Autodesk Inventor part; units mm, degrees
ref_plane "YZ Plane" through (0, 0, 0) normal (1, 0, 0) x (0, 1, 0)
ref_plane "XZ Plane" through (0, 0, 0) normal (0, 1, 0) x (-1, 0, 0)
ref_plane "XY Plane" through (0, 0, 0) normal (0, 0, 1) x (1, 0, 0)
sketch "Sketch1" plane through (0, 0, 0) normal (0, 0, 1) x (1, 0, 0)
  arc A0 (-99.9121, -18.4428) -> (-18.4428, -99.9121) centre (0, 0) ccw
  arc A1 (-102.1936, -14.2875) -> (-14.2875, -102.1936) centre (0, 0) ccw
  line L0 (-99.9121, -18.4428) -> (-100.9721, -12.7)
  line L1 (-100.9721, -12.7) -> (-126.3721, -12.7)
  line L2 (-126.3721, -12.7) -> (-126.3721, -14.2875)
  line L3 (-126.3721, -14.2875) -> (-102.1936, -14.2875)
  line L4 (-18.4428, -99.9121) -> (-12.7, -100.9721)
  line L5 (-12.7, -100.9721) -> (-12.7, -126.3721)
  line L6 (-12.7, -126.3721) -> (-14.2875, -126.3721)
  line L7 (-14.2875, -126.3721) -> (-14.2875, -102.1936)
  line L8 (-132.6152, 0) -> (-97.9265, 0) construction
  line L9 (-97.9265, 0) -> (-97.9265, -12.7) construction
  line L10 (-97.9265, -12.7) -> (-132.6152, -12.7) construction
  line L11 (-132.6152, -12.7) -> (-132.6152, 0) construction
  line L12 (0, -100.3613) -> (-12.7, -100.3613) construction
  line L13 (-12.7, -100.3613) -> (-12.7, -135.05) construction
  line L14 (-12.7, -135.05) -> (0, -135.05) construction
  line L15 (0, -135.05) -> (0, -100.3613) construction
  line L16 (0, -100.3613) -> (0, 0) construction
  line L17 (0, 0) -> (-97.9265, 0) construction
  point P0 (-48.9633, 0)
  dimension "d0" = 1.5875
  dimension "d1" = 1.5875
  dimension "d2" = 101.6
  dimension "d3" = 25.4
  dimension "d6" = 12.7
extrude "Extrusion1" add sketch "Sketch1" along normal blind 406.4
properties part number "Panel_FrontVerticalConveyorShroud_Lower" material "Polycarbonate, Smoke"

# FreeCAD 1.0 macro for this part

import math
import FreeCAD as App
import Part
import Sketcher
from FreeCAD import Vector
Q = App.Units.Quantity

doc = App.newDocument("Part")
body = doc.addObject("PartDesign::Body", "Body")

# Sketch on XY plane
sketch1 = body.newObject("Sketcher::SketchObject", "Sketch")
sketch1.AttachmentSupport = (doc.getObject("XY_Plane"), [""])
sketch1.MapMode = "FlatFace"
sketch1.addGeometry([
    Part.ArcOfCircle(Part.Circle(Vector(0, 0, 0), Vector(0, 0, 1), 101.600023), math.radians(-169.541483), math.radians(-100.458517)),  # 0
    Part.LineSegment(Vector(-99.9121, -18.4428, 0), Vector(-100.9721, -12.7, 0)),  # 1
    Part.LineSegment(Vector(-100.9721, -12.7, 0), Vector(-126.3721, -12.7, 0)),  # 2
    Part.LineSegment(Vector(-126.3721, -12.7, 0), Vector(-126.3721, -14.2875, 0)),  # 3
    Part.LineSegment(Vector(-126.3721, -14.2875, 0), Vector(-102.1936, -14.2875, 0)),  # 4
    Part.ArcOfCircle(Part.Circle(Vector(0, 0, 0), Vector(0, 0, 1), 103.187521), math.radians(-172.04117), math.radians(-97.95883)),  # 5
    Part.LineSegment(Vector(-14.2875, -102.1936, 0), Vector(-14.2875, -126.3721, 0)),  # 6
    Part.LineSegment(Vector(-14.2875, -126.3721, 0), Vector(-12.7, -126.3721, 0)),  # 7
    Part.LineSegment(Vector(-12.7, -126.3721, 0), Vector(-12.7, -100.9721, 0)),  # 8
    Part.LineSegment(Vector(-12.7, -100.9721, 0), Vector(-18.4428, -99.9121, 0)),  # 9
], False)
sketch1.addConstraint([
    Sketcher.Constraint("Coincident", 0, 1, 1, 1),
    Sketcher.Constraint("Coincident", 1, 2, 2, 1),
    Sketcher.Constraint("Coincident", 2, 2, 3, 1),
    Sketcher.Constraint("Coincident", 3, 2, 4, 1),
    Sketcher.Constraint("Coincident", 4, 2, 5, 1),
    Sketcher.Constraint("Coincident", 5, 2, 6, 1),
    Sketcher.Constraint("Coincident", 6, 2, 7, 1),
    Sketcher.Constraint("Coincident", 7, 2, 8, 1),
    Sketcher.Constraint("Coincident", 8, 2, 9, 1),
    Sketcher.Constraint("Coincident", 9, 2, 0, 2),
    Sketcher.Constraint("Horizontal", 2),
    Sketcher.Constraint("Vertical", 3),
    Sketcher.Constraint("Horizontal", 4),
    Sketcher.Constraint("Vertical", 6),
    Sketcher.Constraint("Horizontal", 7),
    Sketcher.Constraint("Vertical", 8),
    Sketcher.Constraint("Coincident", 0, 3, -1, 1),
    Sketcher.Constraint("Coincident", 5, 3, -1, 1),
    Sketcher.Constraint("Radius", 0, Q("4 in")),
    Sketcher.Constraint("DistanceX", 2, 2, 2, 1, Q("1 in")),
    Sketcher.Constraint("DistanceY", 8, 1, 8, 2, Q("1 in")),
    Sketcher.Constraint("DistanceY", 1, 2, -1, 1, Q("0.5 in")),
    Sketcher.Constraint("DistanceX", 7, 2, -1, 1, Q("0.5 in")),
    Sketcher.Constraint("DistanceX", 7, 1, 7, 2, Q("0.0625 in")),
    Sketcher.Constraint("DistanceY", 3, 2, 3, 1, Q("0.0625 in")),
    Sketcher.Constraint("Radius", 5, Q("4.0625 in")),
    Sketcher.Constraint("DistanceX", 4, 1, 4, 2, Q("0.9519 in")),
    Sketcher.Constraint("DistanceY", 6, 2, 6, 1, Q("0.9519 in")),
    Sketcher.Constraint("DistanceY", 0, 1, -1, 1, Q("0.7261 in")),
    Sketcher.Constraint("DistanceX", 9, 2, -1, 1, Q("0.7261 in")),
])
pad1 = body.newObject("PartDesign::Pad", "Pad")
pad1.Profile = sketch1
pad1.Length = Q("16 in")

doc.recompute()
